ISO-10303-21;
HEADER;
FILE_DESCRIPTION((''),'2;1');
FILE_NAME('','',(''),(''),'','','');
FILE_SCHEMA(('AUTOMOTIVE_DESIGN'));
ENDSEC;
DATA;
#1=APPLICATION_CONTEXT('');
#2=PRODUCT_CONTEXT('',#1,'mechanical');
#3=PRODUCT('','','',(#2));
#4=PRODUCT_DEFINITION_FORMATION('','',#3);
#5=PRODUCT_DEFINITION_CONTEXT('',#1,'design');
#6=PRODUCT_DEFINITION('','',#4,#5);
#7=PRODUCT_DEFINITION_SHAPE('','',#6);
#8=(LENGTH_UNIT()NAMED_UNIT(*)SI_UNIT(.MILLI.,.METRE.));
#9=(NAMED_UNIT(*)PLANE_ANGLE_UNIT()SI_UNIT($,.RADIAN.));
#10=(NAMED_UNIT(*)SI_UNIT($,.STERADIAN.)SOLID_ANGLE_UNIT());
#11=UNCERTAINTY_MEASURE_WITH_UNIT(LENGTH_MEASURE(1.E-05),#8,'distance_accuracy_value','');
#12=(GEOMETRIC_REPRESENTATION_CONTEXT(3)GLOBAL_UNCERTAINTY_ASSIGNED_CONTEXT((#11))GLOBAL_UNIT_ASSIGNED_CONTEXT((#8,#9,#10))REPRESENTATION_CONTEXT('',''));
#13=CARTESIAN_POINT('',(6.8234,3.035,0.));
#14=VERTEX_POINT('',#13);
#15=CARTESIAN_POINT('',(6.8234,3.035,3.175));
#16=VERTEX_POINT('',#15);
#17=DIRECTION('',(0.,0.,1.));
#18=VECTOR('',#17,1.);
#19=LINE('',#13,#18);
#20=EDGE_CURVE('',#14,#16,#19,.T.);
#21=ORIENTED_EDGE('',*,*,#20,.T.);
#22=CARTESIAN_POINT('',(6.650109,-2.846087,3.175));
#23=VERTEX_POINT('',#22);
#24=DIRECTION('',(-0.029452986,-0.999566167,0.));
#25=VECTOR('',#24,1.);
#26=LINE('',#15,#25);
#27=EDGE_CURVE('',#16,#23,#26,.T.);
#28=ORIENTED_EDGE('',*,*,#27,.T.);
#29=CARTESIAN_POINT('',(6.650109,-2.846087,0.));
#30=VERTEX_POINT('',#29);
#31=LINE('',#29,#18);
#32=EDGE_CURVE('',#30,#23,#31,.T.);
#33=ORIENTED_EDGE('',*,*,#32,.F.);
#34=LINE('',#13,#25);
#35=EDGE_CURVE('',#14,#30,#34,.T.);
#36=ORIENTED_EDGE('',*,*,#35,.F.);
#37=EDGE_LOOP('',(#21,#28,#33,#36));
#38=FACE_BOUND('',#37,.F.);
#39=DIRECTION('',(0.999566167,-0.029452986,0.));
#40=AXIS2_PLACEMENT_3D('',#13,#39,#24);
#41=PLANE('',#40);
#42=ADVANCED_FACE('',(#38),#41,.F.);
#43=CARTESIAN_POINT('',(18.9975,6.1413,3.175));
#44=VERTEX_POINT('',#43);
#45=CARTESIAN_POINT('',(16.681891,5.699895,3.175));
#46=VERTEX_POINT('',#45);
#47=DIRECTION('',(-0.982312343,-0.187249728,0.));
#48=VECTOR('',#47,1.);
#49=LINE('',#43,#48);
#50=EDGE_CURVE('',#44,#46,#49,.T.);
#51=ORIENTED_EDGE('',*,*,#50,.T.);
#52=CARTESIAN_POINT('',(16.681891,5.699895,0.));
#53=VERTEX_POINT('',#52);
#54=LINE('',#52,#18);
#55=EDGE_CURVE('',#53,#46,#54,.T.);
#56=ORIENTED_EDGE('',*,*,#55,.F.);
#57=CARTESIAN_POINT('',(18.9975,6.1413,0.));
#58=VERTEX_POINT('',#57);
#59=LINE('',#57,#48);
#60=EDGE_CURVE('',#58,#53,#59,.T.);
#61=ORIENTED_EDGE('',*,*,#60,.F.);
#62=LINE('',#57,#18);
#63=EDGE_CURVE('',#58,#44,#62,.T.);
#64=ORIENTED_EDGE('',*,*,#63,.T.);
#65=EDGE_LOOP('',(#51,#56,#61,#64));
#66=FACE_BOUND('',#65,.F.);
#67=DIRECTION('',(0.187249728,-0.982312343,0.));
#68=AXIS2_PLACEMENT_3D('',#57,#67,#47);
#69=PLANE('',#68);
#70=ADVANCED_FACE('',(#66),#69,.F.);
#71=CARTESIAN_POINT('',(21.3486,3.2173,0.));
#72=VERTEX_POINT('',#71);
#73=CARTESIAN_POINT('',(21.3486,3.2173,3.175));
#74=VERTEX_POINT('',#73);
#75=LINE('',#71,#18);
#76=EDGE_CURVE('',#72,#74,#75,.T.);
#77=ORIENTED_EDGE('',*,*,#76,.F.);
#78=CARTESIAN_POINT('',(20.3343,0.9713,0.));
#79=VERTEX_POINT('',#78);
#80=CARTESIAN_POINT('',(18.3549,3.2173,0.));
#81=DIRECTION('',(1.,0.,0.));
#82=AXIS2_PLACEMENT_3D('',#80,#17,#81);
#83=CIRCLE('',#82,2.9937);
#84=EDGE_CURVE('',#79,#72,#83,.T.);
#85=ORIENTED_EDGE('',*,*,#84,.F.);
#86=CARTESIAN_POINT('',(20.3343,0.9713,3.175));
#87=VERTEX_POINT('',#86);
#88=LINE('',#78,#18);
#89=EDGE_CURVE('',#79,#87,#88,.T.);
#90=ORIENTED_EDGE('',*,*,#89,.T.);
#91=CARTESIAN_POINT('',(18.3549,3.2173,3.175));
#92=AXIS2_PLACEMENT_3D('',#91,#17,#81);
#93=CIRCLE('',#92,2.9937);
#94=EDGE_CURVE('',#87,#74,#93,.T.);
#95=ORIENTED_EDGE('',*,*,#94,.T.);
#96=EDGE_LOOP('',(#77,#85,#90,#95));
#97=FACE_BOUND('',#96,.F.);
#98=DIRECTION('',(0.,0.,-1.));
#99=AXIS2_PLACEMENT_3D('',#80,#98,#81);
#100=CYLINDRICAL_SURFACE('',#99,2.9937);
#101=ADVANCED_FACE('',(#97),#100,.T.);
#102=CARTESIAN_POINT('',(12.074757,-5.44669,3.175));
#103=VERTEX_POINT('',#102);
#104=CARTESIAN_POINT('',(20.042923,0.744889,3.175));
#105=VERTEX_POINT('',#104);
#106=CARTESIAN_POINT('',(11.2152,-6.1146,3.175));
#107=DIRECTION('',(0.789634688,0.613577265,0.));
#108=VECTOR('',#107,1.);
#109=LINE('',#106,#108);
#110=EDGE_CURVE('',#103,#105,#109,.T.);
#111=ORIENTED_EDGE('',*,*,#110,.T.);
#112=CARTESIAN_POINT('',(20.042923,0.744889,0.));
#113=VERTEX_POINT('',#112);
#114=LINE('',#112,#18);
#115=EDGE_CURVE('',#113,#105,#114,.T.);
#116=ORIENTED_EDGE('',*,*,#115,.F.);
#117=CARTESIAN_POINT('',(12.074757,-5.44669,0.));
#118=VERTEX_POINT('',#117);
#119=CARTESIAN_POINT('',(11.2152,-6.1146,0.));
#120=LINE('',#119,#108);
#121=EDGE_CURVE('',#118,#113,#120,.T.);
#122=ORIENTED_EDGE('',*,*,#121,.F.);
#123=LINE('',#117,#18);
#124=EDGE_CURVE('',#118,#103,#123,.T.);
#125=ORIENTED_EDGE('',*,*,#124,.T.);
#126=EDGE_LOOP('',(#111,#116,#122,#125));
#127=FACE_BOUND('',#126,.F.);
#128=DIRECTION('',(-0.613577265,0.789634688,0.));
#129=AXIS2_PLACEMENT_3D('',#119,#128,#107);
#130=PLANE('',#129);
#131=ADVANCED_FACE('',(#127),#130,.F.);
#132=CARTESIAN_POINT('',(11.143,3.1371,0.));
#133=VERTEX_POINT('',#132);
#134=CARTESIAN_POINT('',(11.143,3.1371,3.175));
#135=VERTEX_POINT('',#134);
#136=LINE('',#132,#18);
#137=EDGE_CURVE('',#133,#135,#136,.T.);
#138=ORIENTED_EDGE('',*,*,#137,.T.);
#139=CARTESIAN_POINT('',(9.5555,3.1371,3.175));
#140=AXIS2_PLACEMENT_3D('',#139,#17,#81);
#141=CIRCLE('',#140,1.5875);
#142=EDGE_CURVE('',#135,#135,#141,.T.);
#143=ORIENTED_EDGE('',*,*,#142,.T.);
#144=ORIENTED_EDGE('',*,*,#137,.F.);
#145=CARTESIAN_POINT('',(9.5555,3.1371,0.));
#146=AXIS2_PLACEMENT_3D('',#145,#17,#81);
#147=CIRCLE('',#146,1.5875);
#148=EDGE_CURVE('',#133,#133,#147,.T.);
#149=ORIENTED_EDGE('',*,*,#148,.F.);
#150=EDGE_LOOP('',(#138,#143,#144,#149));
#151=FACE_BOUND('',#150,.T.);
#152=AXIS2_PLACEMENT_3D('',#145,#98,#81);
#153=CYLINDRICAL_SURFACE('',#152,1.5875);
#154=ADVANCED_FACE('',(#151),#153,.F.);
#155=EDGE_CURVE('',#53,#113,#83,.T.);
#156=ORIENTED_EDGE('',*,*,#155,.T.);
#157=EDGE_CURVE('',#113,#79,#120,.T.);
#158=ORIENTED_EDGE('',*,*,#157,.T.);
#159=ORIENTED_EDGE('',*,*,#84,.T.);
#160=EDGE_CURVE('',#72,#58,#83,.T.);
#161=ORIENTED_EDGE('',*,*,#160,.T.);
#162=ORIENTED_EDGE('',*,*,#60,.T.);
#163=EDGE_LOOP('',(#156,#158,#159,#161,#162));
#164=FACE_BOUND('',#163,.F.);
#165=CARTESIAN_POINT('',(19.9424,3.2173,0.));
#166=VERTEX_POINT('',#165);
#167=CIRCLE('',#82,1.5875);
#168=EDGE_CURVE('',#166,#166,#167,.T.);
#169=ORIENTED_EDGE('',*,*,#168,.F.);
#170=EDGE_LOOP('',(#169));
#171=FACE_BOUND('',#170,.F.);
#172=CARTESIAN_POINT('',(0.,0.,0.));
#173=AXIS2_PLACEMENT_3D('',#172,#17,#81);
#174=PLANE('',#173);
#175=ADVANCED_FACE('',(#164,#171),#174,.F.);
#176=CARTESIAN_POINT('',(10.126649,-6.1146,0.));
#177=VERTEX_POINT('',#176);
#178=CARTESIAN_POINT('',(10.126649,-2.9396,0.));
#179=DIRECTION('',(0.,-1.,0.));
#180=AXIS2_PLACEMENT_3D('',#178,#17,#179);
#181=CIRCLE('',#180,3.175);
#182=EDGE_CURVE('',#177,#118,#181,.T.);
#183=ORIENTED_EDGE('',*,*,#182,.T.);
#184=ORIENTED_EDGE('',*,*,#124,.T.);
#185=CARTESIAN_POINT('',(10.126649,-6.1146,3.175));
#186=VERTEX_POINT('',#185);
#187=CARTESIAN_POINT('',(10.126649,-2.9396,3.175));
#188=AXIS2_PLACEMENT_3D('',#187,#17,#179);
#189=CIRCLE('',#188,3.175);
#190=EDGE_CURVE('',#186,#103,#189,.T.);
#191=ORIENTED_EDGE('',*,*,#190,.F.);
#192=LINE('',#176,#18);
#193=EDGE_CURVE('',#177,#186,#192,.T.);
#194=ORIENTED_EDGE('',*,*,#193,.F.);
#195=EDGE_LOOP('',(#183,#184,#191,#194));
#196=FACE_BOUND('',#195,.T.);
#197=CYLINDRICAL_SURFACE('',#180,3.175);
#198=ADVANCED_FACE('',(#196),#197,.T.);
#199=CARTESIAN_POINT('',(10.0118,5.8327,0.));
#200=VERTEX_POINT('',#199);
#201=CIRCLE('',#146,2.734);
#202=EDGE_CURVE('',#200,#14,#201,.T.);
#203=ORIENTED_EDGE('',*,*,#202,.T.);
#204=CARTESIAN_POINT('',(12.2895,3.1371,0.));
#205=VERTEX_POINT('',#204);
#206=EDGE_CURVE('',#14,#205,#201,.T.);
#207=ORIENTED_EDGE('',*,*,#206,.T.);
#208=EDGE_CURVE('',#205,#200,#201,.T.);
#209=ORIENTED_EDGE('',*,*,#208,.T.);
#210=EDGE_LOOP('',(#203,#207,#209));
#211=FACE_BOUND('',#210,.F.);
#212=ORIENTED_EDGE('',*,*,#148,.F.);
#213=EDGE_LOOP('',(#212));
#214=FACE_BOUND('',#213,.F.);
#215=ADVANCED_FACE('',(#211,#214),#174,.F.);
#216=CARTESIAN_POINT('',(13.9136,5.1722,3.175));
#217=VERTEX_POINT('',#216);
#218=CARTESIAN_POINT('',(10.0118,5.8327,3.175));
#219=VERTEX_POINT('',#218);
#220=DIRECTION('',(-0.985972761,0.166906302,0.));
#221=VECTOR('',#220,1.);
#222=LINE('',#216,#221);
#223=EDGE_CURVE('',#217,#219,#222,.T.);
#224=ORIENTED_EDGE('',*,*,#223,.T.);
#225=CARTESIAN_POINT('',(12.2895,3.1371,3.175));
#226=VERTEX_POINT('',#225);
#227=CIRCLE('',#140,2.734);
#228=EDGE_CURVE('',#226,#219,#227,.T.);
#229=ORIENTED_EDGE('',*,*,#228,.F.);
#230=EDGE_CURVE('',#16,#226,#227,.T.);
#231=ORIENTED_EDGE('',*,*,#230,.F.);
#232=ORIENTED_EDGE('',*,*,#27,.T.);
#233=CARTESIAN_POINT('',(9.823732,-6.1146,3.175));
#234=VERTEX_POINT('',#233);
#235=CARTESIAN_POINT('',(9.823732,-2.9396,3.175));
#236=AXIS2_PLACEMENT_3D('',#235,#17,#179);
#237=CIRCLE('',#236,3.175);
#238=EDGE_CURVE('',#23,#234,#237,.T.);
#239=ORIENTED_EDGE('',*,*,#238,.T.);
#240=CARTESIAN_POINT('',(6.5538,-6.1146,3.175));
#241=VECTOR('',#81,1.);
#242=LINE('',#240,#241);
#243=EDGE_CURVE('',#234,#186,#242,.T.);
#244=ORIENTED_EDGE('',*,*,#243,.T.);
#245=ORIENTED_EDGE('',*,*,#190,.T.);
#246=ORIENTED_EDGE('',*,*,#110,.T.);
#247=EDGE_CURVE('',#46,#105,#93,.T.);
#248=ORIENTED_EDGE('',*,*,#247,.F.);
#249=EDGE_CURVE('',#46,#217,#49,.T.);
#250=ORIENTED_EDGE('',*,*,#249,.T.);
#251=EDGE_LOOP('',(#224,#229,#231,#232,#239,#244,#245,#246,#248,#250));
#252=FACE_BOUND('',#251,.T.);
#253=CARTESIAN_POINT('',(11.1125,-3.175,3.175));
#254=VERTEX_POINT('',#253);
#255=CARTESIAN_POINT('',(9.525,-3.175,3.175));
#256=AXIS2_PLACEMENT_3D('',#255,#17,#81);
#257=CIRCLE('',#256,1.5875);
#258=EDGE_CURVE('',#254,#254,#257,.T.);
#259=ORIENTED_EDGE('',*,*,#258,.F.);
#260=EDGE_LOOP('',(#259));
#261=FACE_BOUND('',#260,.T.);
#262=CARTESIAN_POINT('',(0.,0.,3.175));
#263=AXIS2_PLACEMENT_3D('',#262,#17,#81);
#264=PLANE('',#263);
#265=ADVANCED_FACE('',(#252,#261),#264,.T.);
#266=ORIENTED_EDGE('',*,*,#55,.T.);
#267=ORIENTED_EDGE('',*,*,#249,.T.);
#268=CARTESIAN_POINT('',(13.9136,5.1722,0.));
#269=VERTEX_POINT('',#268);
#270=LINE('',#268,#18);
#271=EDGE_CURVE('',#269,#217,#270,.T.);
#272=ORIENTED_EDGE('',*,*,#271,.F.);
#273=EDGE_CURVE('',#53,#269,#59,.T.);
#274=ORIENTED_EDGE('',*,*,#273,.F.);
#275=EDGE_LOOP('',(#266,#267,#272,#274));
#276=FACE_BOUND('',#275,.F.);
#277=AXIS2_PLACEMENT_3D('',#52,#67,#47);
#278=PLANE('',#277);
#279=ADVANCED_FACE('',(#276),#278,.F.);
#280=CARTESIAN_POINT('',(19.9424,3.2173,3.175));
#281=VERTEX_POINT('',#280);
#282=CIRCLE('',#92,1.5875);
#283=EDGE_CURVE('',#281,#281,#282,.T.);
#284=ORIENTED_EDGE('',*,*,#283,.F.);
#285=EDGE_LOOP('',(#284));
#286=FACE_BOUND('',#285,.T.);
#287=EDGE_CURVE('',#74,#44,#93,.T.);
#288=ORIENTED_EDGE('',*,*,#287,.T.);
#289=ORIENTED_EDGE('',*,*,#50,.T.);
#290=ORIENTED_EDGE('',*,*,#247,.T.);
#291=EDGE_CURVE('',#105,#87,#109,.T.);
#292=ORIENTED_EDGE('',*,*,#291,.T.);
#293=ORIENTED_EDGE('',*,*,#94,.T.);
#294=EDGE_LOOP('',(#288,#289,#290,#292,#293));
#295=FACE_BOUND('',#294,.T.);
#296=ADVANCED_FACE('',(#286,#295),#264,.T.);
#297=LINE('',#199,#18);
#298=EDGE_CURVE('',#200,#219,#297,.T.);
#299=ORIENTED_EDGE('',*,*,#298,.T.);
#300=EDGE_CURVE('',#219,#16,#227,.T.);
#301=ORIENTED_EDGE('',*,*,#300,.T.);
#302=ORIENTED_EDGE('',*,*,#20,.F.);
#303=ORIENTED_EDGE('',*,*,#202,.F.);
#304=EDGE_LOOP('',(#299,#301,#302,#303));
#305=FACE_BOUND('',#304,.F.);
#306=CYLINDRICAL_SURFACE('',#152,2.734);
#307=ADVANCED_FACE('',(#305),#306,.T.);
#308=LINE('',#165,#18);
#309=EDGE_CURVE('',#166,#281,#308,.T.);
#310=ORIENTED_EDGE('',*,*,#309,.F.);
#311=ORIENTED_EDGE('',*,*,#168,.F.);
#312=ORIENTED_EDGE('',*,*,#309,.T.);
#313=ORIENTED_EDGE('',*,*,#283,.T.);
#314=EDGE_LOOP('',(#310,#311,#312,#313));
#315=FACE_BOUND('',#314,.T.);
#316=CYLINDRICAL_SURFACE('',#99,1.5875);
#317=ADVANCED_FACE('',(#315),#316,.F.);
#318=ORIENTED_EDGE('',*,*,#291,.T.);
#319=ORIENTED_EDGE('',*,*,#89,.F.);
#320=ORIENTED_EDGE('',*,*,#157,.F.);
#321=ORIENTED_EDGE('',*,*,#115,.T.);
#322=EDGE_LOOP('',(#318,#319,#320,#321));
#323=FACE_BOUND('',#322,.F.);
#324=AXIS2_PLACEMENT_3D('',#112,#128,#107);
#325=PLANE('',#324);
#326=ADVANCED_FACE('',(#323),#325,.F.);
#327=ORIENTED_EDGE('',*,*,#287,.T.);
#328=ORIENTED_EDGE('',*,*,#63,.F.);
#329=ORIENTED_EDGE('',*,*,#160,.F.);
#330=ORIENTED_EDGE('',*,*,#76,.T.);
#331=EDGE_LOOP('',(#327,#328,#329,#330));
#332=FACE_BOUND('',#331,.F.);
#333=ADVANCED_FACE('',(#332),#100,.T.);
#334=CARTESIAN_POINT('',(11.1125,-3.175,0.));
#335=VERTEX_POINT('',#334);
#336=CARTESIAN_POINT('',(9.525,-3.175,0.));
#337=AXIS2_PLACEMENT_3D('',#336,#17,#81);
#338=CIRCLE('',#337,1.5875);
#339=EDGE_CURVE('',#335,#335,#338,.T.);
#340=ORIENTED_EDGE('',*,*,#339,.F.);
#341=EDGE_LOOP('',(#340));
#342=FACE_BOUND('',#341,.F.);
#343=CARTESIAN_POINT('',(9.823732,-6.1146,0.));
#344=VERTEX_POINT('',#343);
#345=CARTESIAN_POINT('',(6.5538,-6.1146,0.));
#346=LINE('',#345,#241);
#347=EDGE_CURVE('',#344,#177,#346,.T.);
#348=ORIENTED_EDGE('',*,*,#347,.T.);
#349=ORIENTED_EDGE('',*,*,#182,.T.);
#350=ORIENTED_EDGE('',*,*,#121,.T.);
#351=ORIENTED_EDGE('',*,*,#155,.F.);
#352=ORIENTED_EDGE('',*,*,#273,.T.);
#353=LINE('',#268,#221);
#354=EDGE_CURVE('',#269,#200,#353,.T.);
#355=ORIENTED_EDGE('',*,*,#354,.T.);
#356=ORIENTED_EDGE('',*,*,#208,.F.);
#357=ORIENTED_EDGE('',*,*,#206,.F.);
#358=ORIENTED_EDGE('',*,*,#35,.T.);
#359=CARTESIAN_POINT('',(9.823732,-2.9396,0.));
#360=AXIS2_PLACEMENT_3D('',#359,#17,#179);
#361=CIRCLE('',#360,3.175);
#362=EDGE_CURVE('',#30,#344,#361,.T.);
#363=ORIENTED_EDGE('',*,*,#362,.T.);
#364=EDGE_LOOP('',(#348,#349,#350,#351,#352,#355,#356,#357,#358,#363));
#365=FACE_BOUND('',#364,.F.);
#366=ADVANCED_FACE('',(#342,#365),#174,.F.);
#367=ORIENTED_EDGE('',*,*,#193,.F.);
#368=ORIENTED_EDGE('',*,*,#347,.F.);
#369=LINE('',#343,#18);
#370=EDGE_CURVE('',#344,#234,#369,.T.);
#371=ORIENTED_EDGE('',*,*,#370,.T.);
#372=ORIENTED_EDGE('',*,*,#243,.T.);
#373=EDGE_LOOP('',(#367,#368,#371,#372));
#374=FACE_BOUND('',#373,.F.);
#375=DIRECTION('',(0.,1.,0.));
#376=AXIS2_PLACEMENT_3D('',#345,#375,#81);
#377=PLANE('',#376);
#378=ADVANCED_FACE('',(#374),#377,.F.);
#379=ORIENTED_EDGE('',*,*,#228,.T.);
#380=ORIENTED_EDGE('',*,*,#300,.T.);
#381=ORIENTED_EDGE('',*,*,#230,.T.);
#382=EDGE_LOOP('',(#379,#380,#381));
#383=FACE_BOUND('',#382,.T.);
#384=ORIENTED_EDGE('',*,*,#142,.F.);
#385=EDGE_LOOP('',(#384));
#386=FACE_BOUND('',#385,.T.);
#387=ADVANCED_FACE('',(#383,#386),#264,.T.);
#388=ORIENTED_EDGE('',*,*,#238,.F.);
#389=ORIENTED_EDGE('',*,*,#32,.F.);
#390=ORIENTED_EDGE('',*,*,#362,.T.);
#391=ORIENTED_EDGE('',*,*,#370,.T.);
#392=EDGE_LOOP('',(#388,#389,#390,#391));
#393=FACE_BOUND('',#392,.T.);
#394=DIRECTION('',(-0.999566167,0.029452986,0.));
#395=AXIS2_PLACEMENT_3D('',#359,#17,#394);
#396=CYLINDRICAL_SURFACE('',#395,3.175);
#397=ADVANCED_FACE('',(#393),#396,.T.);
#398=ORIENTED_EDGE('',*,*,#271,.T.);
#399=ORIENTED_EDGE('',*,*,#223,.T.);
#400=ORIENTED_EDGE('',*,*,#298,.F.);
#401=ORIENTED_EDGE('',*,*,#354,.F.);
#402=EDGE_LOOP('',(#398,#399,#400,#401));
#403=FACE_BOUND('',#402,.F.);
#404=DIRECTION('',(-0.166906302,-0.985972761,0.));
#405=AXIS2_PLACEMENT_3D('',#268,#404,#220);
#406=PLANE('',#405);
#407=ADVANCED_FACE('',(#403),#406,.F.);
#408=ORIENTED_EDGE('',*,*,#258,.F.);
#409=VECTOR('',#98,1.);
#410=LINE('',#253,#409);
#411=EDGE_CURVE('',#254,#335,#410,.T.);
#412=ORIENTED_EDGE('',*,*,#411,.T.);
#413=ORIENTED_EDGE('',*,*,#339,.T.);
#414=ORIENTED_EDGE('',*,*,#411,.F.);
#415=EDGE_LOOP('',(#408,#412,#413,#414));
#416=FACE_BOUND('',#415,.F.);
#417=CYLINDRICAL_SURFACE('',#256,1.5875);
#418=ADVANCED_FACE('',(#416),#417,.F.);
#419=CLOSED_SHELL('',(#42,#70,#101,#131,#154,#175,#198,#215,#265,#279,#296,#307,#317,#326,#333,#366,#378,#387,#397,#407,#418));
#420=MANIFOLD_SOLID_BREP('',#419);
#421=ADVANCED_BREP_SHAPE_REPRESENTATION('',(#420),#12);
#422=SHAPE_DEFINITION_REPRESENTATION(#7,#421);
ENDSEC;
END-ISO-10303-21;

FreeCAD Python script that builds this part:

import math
import FreeCAD as App
import Part
import Sketcher

V = App.Vector
Q = App.Units.Quantity


def edges_at(feature, points):
    """Names of the edges that pass closest to the given points."""
    edges = feature.Shape.Edges
    near = lambda p: min(range(len(edges)), key=lambda i: edges[i].distToShape(Part.Vertex(*p))[0])
    return sorted({f"Edge{near(p) + 1}" for p in points})

doc = App.newDocument("Part")
params = doc.addObject("Spreadsheet::Sheet", "Params")
for row, (alias, value) in enumerate([
    ("sketch1_diameter", "0.125 in"),
    ("pad1_length", "0.125 in"),
    ("sketch2_diameter", "0.125 in"),
    ("pocket1_length", "0.125 in"),
    ("fillet_radius", "0.125 in"),
], start=1):
    params.set(f"A{row}", alias)
    params.set(f"B{row}", "=" + value)
    params.setAlias(f"B{row}", alias)

body = doc.addObject("PartDesign::Body", "Body")

sketch1 = doc.addObject("Sketcher::SketchObject", "Sketch")
body.addObject(sketch1)
sketch1.AttachmentSupport = (doc.XY_Plane, [""])
sketch1.MapMode = "FlatFace"
sketch1.addGeometry([
    Part.LineSegment(V(13.9136, 5.1722, 0), V(10.0118, 5.8327, 0)),
    Part.ArcOfCircle(Part.Circle(V(9.5555, 3.1371, 0), V(0, 0, 1), 2.734), math.radians(80.392284), math.radians(182.140177)),
    Part.LineSegment(V(6.8234, 3.035, 0), V(6.5538, -6.1146, 0)),
    Part.LineSegment(V(6.5538, -6.1146, 0), V(11.2152, -6.1146, 0)),
    Part.LineSegment(V(11.2152, -6.1146, 0), V(20.3343, 0.9713, 0)),
    Part.ArcOfCircle(Part.Circle(V(18.3549, 3.2173, 0), V(0, 0, 1), 2.9937), math.radians(-48.61027), math.radians(77.605292)),
    Part.LineSegment(V(18.9975, 6.1413, 0), V(13.9136, 5.1722, 0)),
    Part.Circle(V(9.5555, 3.1371, 0), V(0, 0, 1), 1.5875),
    Part.Circle(V(18.3549, 3.2173, 0), V(0, 0, 1), 1.5875),
], False)
sketch1.addConstraint([
    Sketcher.Constraint("Tangent", 0, 2, 1, 1),
    Sketcher.Constraint("Coincident", 1, 2, 2, 1),
    Sketcher.Constraint("Coincident", 2, 2, 3, 1),
    Sketcher.Constraint("Coincident", 3, 2, 4, 1),
    Sketcher.Constraint("Coincident", 4, 2, 5, 1),
    Sketcher.Constraint("Coincident", 5, 2, 6, 1),
    Sketcher.Constraint("Coincident", 6, 2, 0, 1),
    Sketcher.Constraint("Horizontal", 3),
    Sketcher.Constraint("Coincident", 7, 3, 1, 3),
    Sketcher.Constraint("Coincident", 8, 3, 5, 3),
    Sketcher.Constraint("Equal", 7, 8),
    Sketcher.Constraint("Diameter", 7, Q("0.125 in")),
    Sketcher.Constraint("Radius", 1, 2.734),
    Sketcher.Constraint("Radius", 5, 2.9937),
    Sketcher.Constraint("DistanceX", 1, 2, 5, 3, Q("0.454 in")),
    Sketcher.Constraint("DistanceY", 6, 2, 0, 2, Q("0.026 in")),
    Sketcher.Constraint("Distance", 0, Q("0.1558 in")),
    Sketcher.Constraint("DistanceX", 3, 1, 3, 2, 4.6614),
    Sketcher.Constraint("DistanceX", -1, 1, 1, 3, Q("0.3762 in")),
    Sketcher.Constraint("DistanceY", -1, 1, 1, 3, Q("0.1235 in")),
    Sketcher.Constraint("DistanceY", -1, 1, 1, 2, Q("0.1195 in")),
    Sketcher.Constraint("DistanceX", 2, 2, 5, 3, Q("0.4646 in")),
    Sketcher.Constraint("DistanceY", 2, 2, 5, 3, Q("0.3674 in")),
    Sketcher.Constraint("DistanceX", 0, 2, 4, 2, Q("0.4064 in")),
    Sketcher.Constraint("DistanceY", 4, 2, 0, 2, Q("0.1914 in")),
    Sketcher.Constraint("DistanceX", 5, 3, 5, 2, Q("0.0253 in")),
])
sketch1.setExpression("Constraints[11]", "Params.sketch1_diameter")
pad1 = doc.addObject("PartDesign::Pad", "Pad")
body.addObject(pad1)
pad1.Profile = sketch1
pad1.setExpression("Length", "Params.pad1_length")

sketch2 = doc.addObject("Sketcher::SketchObject", "Sketch001")
body.addObject(sketch2)
sketch2.AttachmentSupport = (doc.XY_Plane, [""])
sketch2.MapMode = "FlatFace"
sketch2.AttachmentOffset = App.Placement(V(0, 0, 0.125 * 25.4), App.Rotation())
sketch2.addGeometry(Part.Circle(V(9.525, -3.175, 0), V(0, 0, 1), 1.5875), False)
sketch2.addConstraint([
    Sketcher.Constraint("Diameter", 0, Q("0.125 in")),
    Sketcher.Constraint("DistanceX", -1, 1, 0, 3, Q("0.375 in")),
    Sketcher.Constraint("DistanceY", 0, 3, -1, 1, Q("0.125 in")),
])
sketch2.setExpression("Constraints[0]", "Params.sketch2_diameter")
pocket1 = doc.addObject("PartDesign::Pocket", "Pocket")
body.addObject(pocket1)
pocket1.Profile = sketch2
pocket1.setExpression("Length", "Params.pocket1_length")
doc.recompute()

fillet = doc.addObject("PartDesign::Fillet", "Fillet")
body.addObject(fillet)
fillet.Base = (pocket1, edges_at(pocket1, [(6.554, -6.115, 1.587), (11.215, -6.115, 1.587)]))
fillet.setExpression("Radius", "Params.fillet_radius")

doc.recompute()
